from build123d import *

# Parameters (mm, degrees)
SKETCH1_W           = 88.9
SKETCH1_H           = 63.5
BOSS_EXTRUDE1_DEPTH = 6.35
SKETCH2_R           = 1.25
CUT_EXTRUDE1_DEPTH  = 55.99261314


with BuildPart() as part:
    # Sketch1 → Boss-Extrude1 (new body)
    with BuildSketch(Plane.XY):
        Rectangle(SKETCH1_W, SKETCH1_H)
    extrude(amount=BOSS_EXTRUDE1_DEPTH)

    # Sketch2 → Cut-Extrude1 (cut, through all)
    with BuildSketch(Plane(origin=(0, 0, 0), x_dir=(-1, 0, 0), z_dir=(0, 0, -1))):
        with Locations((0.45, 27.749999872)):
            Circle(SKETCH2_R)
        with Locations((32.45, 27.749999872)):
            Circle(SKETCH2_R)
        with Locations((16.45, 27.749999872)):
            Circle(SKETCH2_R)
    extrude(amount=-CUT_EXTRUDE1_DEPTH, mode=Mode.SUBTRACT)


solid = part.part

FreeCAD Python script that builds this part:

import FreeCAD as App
import Part
import Sketcher
Q = App.Units.Quantity

doc = App.newDocument("Part")
body = doc.addObject("PartDesign::Body", "Body")

# Sketch on XY plane
sketch1 = body.newObject("Sketcher::SketchObject", "Sketch")
sketch1.AttachmentSupport = (doc.getObject("XY_Plane"), [""])
sketch1.MapMode = "FlatFace"
sketch1.addGeometry(Part.LineSegment(App.Vector(-44, 32, 0), App.Vector(-44, -32, 0)), False)
sketch1.addGeometry(Part.LineSegment(App.Vector(-44, -32, 0), App.Vector(44, -32, 0)), False)
sketch1.addGeometry(Part.LineSegment(App.Vector(44, -32, 0), App.Vector(44, 32, 0)), False)
sketch1.addGeometry(Part.LineSegment(App.Vector(44, 32, 0), App.Vector(-44, 32, 0)), False)
sketch1.addConstraint(Sketcher.Constraint("Coincident", 0, 2, 1, 1))
sketch1.addConstraint(Sketcher.Constraint("Coincident", 1, 2, 2, 1))
sketch1.addConstraint(Sketcher.Constraint("Coincident", 2, 2, 3, 1))
sketch1.addConstraint(Sketcher.Constraint("Coincident", 3, 2, 0, 1))
sketch1.addConstraint(Sketcher.Constraint("Vertical", 0))
sketch1.addConstraint(Sketcher.Constraint("Horizontal", 1))
sketch1.addConstraint(Sketcher.Constraint("Vertical", 2))
sketch1.addConstraint(Sketcher.Constraint("Horizontal", 3))
sketch1.addConstraint(Sketcher.Constraint("Symmetric", 0, 2, 2, 2, -1, 1))
sketch1.addConstraint(Sketcher.Constraint("DistanceX", 1, 1, 1, 2, Q("3.5 in")))
sketch1.addConstraint(Sketcher.Constraint("DistanceY", 0, 2, 0, 1, Q("2.5 in")))
pad1 = body.newObject("PartDesign::Pad", "Pad")
pad1.Profile = sketch1
pad1.Length = Q("0.25 in")

# Sketch on XY plane
sketch2 = body.newObject("Sketcher::SketchObject", "Sketch001")
sketch2.AttachmentSupport = (doc.getObject("XY_Plane"), [""])
sketch2.MapMode = "FlatFace"
sketch2.addGeometry(Part.Circle(App.Vector(-0.5, 27.7, 0), App.Vector(0, 0, 1), 1.2), False)
sketch2.addGeometry(Part.Circle(App.Vector(-32.5, 27.7, 0), App.Vector(0, 0, 1), 1.2), False)
sketch2.addGeometry(Part.Circle(App.Vector(-16.4, 27.7, 0), App.Vector(0, 0, 1), 1.2), False)
sketch2.addConstraint(Sketcher.Constraint("Equal", 0, 1))
sketch2.addConstraint(Sketcher.Constraint("Equal", 1, 2))
sketch2.addConstraint(Sketcher.Constraint("Horizontal", 0, 3, 1, 3))
sketch2.addConstraint(Sketcher.Constraint("Horizontal", 1, 3, 2, 3))
sketch2.addConstraint(Sketcher.Constraint("Diameter", 0, 2.5))
sketch2.addConstraint(Sketcher.Constraint("DistanceX", 0, 3, -1, 1, 0.45))
sketch2.addConstraint(Sketcher.Constraint("DistanceY", -1, 1, 0, 3, 27.75))
sketch2.addConstraint(Sketcher.Constraint("DistanceX", 1, 3, -1, 1, 32.45))
sketch2.addConstraint(Sketcher.Constraint("DistanceX", 2, 3, -1, 1, 16.45))
pocket1 = body.newObject("PartDesign::Pocket", "Pocket")
pocket1.Profile = sketch2
pocket1.Type = "ThroughAll"
pocket1.Reversed = True

doc.recompute()
